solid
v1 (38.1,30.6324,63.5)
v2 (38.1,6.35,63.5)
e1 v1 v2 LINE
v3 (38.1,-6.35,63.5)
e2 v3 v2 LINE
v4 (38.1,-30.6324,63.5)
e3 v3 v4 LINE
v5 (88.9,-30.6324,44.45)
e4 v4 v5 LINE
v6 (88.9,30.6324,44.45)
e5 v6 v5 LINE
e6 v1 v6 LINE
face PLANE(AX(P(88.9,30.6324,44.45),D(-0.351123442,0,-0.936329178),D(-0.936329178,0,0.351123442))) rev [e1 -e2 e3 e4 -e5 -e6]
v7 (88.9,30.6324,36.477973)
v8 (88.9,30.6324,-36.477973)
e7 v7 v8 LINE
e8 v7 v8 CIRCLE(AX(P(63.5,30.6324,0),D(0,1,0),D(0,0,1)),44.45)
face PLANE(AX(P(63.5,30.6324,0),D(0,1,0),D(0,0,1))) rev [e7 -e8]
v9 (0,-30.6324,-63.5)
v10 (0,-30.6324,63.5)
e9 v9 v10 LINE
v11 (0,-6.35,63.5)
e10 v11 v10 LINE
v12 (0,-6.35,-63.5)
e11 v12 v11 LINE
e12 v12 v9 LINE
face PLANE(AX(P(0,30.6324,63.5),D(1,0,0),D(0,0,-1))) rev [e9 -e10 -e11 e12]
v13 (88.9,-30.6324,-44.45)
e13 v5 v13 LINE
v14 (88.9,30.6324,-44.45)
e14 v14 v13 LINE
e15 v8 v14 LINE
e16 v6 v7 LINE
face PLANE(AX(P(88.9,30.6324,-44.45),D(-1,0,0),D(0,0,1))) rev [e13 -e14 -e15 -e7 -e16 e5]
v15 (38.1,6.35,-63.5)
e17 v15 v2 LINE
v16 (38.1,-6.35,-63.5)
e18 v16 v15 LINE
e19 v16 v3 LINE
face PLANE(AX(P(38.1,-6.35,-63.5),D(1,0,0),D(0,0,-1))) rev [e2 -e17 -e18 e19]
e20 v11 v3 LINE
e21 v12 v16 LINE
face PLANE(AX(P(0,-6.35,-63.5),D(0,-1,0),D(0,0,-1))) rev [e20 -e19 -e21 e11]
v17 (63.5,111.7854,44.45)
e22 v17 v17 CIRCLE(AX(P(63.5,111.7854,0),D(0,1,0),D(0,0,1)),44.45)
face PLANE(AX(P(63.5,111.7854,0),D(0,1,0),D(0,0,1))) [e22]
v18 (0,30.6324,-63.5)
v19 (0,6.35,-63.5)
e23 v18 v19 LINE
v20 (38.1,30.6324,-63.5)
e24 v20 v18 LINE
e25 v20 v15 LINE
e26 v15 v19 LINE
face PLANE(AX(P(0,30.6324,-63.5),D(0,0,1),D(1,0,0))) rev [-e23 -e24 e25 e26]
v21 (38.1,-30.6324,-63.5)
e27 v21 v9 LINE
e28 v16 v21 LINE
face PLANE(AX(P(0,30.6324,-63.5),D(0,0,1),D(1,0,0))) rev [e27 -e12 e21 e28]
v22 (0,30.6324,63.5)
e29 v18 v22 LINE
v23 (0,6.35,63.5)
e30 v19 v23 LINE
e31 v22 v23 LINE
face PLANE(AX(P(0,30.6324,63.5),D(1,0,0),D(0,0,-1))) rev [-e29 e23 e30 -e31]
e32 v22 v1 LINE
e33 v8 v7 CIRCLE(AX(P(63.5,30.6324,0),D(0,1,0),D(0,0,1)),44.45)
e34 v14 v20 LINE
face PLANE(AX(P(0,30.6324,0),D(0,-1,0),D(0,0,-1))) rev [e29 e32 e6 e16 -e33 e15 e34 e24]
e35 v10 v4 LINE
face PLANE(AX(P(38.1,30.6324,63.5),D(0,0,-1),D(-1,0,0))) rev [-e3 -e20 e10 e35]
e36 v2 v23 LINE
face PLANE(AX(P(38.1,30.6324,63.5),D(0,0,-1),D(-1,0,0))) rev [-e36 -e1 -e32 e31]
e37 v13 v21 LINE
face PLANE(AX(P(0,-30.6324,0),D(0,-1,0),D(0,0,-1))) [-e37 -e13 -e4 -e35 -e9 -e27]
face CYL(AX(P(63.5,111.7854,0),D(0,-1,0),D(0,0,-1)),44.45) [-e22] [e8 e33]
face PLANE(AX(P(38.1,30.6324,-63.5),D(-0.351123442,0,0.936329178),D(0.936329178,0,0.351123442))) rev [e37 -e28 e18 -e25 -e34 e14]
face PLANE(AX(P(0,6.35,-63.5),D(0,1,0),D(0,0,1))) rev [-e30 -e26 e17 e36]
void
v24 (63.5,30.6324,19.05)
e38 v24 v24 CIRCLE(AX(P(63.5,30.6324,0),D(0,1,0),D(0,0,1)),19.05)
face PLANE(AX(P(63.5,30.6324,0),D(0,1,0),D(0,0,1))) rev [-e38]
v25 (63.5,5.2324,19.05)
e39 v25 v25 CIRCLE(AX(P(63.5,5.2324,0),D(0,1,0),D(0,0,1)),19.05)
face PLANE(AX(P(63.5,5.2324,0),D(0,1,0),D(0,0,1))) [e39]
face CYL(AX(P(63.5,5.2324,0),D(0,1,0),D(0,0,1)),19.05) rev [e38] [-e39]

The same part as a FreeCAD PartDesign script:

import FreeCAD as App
import Part
import Sketcher
Q = App.Units.Quantity


def add_polygon(sketch, points):
    """Adds a closed chain of lines whose ends are joined by coincident constraints."""
    first, n = sketch.GeometryCount, len(points)
    for a, b in zip(points, points[1:] + points[:1]):
        sketch.addGeometry(Part.LineSegment(App.Vector(*a, 0), App.Vector(*b, 0)), False)
    for i in range(n):
        sketch.addConstraint(Sketcher.Constraint("Coincident", first + i, 2, first + (i + 1) % n, 1))

doc = App.newDocument("Part")
body = doc.addObject("PartDesign::Body", "Body")

sketch1 = doc.addObject("Sketcher::SketchObject", "Sketch")
body.addObject(sketch1)
sketch1.AttachmentSupport = (doc.XZ_Plane, [""])
sketch1.MapMode = "FlatFace"
add_polygon(sketch1, [(0, -63.5), (0, 63.5), (38.1, 63.5), (88.9, 44.45), (88.9, -44.45), (38.1, -63.5)])
sketch1.addConstraint([
    Sketcher.Constraint("Vertical", 0),
    Sketcher.Constraint("Horizontal", 1),
    Sketcher.Constraint("Vertical", 3),
    Sketcher.Constraint("Horizontal", 5),
    Sketcher.Constraint("Symmetric", 0, 2, 5, 2, -1, 1),
    Sketcher.Constraint("Vertical", 1, 2, 4, 2),
    Sketcher.Constraint("Equal", 2, 4),
    Sketcher.Constraint("DistanceY", 0, 1, 0, 2, Q("5 in")),
    Sketcher.Constraint("DistanceX", 1, 1, 1, 2, Q("1.5 in")),
    Sketcher.Constraint("DistanceY", 3, 2, 3, 1, Q("3.5 in")),
    Sketcher.Constraint("DistanceX", 1, 2, 2, 2, Q("2 in")),
])
pad1 = doc.addObject("PartDesign::Pad", "Pad")
body.addObject(pad1)
pad1.Profile = sketch1
pad1.Length = Q("2.412 in")
pad1.Midplane = True

sketch2 = doc.addObject("Sketcher::SketchObject", "Sketch001")
body.addObject(sketch2)
sketch2.AttachmentSupport = (doc.XY_Plane, [""])
sketch2.MapMode = "FlatFace"
add_polygon(sketch2, [(0, 6.35), (0, -6.35), (38.1, -6.35), (38.1, 6.35)])
sketch2.addConstraint([
    Sketcher.Constraint("Vertical", 0),
    Sketcher.Constraint("Horizontal", 1),
    Sketcher.Constraint("Vertical", 2),
    Sketcher.Constraint("Horizontal", 3),
    Sketcher.Constraint("Symmetric", 0, 2, 3, 2, -1, 1),
    Sketcher.Constraint("DistanceX", 1, 1, 1, 2, Q("1.5 in")),
    Sketcher.Constraint("DistanceY", 0, 2, 0, 1, Q("0.5 in")),
])
pocket1 = doc.addObject("PartDesign::Pocket", "Pocket")
body.addObject(pocket1)
pocket1.Profile = sketch2
pocket1.Type = "ThroughAll"
pocket1.Midplane = True

sketch3 = doc.addObject("Sketcher::SketchObject", "Sketch002")
body.addObject(sketch3)
sketch3.AttachmentSupport = (doc.XZ_Plane, [""])
sketch3.MapMode = "FlatFace"
sketch3.AttachmentOffset = App.Placement(App.Vector(0, 0, -1.206 * 25.4), App.Rotation())
sketch3.addGeometry(Part.Circle(App.Vector(63.5, 0, 0), App.Vector(0, 0, 1), 19.05), False)
sketch3.addConstraint([
    Sketcher.Constraint("PointOnObject", 0, 3, -1),
    Sketcher.Constraint("Diameter", 0, Q("1.5 in")),
    Sketcher.Constraint("DistanceX", -1, 1, 0, 3, Q("2.5 in")),
])
pocket2 = doc.addObject("PartDesign::Pocket", "Pocket001")
body.addObject(pocket2)
pocket2.Profile = sketch3
pocket2.Length = Q("1 in")
pocket2.Reversed = True

sketch4 = doc.addObject("Sketcher::SketchObject", "Sketch003")
body.addObject(sketch4)
sketch4.AttachmentSupport = (doc.XZ_Plane, [""])
sketch4.MapMode = "FlatFace"
sketch4.AttachmentOffset = App.Placement(App.Vector(0, 0, -1.206 * 25.4), App.Rotation())
sketch4.addGeometry(Part.Circle(App.Vector(63.5, 0, 0), App.Vector(0, 0, 1), 44.45), False)
sketch4.addConstraint([
    Sketcher.Constraint("PointOnObject", 0, 3, -1),
    Sketcher.Constraint("Diameter", 0, Q("3.5 in")),
    Sketcher.Constraint("DistanceX", -1, 1, 0, 3, Q("2.5 in")),
])
pad2 = doc.addObject("PartDesign::Pad", "Pad001")
body.addObject(pad2)
pad2.Profile = sketch4
pad2.Length = Q("3.195 in")
pad2.Reversed = True

doc.recompute()
